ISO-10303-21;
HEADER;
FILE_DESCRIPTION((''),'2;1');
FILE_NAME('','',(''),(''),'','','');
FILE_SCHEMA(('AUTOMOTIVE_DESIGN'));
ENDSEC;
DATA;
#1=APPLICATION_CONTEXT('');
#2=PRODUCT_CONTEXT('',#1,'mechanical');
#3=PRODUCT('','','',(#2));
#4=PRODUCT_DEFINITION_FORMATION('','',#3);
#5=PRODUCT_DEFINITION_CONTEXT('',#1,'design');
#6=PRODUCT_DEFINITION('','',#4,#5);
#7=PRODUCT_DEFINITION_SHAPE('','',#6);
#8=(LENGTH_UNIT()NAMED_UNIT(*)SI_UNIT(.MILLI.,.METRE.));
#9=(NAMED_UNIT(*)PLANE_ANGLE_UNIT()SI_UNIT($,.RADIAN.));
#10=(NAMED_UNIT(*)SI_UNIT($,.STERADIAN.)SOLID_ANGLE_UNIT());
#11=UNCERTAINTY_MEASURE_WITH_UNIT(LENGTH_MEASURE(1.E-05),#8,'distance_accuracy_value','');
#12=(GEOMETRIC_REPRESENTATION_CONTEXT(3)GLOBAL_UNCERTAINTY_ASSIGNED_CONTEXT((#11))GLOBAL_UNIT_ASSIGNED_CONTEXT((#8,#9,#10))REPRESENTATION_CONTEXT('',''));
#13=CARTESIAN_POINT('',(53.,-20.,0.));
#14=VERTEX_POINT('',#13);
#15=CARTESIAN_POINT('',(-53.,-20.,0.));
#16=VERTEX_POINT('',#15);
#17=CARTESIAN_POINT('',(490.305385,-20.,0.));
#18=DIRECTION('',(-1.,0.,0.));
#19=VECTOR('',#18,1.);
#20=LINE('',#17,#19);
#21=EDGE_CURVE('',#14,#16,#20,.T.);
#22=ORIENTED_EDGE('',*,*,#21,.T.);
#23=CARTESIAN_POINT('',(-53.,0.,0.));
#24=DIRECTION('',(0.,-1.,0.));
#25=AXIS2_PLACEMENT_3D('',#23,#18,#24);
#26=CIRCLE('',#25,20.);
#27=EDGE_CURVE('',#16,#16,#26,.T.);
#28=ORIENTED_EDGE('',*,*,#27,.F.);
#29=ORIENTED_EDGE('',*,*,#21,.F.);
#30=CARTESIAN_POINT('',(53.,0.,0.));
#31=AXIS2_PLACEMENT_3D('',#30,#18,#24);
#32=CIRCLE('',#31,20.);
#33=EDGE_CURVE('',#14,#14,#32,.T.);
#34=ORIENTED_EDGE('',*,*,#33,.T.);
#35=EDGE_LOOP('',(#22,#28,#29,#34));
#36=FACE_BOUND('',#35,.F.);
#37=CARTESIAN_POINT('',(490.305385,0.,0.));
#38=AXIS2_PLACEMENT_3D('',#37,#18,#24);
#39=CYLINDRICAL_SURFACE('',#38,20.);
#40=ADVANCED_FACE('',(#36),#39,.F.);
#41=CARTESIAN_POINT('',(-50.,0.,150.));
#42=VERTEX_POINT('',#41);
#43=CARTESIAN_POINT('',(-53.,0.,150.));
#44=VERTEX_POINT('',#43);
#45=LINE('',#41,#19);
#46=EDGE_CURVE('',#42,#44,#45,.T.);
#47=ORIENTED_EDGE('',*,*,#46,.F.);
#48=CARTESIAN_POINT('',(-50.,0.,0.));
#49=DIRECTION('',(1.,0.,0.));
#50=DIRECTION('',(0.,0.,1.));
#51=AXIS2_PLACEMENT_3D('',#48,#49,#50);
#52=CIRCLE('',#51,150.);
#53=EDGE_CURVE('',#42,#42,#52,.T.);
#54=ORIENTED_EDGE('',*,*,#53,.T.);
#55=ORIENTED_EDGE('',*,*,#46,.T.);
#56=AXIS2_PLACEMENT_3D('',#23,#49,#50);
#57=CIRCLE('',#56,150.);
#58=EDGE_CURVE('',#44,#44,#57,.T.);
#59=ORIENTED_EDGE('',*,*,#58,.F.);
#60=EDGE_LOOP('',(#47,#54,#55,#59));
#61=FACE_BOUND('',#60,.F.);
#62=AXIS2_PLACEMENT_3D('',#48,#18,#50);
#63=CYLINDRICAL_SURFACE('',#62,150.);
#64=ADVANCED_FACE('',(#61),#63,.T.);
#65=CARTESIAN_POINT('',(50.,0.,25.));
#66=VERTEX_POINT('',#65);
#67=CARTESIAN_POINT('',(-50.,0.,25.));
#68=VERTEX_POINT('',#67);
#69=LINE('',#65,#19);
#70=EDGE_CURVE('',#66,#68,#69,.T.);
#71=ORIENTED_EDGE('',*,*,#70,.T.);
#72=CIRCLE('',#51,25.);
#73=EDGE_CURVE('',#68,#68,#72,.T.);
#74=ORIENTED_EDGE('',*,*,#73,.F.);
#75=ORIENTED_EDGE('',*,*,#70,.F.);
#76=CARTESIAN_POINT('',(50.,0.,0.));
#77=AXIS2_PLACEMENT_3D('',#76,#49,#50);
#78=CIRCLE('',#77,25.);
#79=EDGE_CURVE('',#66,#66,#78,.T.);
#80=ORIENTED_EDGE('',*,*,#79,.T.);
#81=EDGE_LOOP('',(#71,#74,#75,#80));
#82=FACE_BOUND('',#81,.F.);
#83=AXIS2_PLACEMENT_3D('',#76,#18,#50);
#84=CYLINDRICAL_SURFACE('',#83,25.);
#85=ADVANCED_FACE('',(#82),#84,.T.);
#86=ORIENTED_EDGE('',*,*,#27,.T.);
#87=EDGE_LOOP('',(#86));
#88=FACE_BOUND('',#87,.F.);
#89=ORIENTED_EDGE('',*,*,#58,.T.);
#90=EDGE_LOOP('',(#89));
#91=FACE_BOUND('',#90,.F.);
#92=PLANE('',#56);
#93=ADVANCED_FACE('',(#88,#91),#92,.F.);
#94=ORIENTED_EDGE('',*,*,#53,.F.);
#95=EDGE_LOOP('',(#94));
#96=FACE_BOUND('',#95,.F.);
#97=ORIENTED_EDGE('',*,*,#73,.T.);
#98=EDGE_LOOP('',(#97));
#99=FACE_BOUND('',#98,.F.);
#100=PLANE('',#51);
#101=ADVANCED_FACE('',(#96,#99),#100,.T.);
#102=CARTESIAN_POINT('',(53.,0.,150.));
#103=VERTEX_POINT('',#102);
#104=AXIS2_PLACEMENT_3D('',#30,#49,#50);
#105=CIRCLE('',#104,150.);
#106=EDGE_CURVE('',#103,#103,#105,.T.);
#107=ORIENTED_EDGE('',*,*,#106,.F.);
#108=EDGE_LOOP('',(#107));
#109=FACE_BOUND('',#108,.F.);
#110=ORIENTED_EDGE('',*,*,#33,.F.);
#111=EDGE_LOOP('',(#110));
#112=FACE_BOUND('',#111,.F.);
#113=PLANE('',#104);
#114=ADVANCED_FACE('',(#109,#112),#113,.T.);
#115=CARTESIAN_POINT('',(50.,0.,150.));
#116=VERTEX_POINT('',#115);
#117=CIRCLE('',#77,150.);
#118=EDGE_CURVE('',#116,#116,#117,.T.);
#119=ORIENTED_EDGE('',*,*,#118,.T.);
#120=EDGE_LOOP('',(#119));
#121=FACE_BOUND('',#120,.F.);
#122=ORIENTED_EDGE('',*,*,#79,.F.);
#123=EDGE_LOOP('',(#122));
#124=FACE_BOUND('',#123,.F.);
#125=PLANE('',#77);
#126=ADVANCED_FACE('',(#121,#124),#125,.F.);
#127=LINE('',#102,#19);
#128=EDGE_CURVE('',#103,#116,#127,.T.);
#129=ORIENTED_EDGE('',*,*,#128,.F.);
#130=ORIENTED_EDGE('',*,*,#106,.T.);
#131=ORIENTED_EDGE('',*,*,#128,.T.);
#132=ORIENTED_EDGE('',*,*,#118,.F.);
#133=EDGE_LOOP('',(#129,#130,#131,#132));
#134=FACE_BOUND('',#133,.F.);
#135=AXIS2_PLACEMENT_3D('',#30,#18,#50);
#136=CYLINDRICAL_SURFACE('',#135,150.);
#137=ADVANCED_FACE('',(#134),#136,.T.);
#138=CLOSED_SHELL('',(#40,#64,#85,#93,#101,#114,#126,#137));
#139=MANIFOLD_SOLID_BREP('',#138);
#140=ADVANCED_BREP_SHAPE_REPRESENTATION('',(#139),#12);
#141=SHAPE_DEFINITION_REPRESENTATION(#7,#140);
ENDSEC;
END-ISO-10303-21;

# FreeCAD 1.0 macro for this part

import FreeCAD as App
import Part
import Sketcher


def add_polygon(sketch, points):
    """Adds a closed chain of lines whose ends are joined by coincident constraints."""
    first, n = sketch.GeometryCount, len(points)
    for a, b in zip(points, points[1:] + points[:1]):
        sketch.addGeometry(Part.LineSegment(App.Vector(*a, 0), App.Vector(*b, 0)), False)
    for i in range(n):
        sketch.addConstraint(Sketcher.Constraint("Coincident", first + i, 2, first + (i + 1) % n, 1))

doc = App.newDocument("Part")
body = doc.addObject("PartDesign::Body", "Body")

sketch1 = doc.addObject("Sketcher::SketchObject", "Sketch")
body.addObject(sketch1)
sketch1.AttachmentSupport = (doc.XZ_Plane, [""])
sketch1.MapMode = "FlatFace"
add_polygon(sketch1, [(50, 25), (-50, 25), (-50, 150), (-53, 150), (-53, 0), (53, 0), (53, 150), (50, 150)])
sketch1.addConstraint(Sketcher.Constraint("Horizontal", 0))
sketch1.addConstraint(Sketcher.Constraint("Vertical", 1))
sketch1.addConstraint(Sketcher.Constraint("Horizontal", 2))
sketch1.addConstraint(Sketcher.Constraint("Vertical", 3))
sketch1.addConstraint(Sketcher.Constraint("Horizontal", 4))
sketch1.addConstraint(Sketcher.Constraint("Vertical", 5))
sketch1.addConstraint(Sketcher.Constraint("Horizontal", 6))
sketch1.addConstraint(Sketcher.Constraint("Vertical", 7))
sketch1.addConstraint(Sketcher.Constraint("Symmetric", 3, 2, 4, 2, -1, 1))
sketch1.addConstraint(Sketcher.Constraint("Symmetric", 1, 2, 6, 2, -2))
sketch1.addConstraint(Sketcher.Constraint("DistanceX", 0, 2, 0, 1, 100.0))
sketch1.addConstraint(Sketcher.Constraint("DistanceX", 2, 2, 2, 1, 3.0))
sketch1.addConstraint(Sketcher.Constraint("DistanceY", 1, 1, 1, 2, 125.0))
sketch1.addConstraint(Sketcher.Constraint("DistanceY", 3, 2, 3, 1, 150.0))
revolution = doc.addObject("PartDesign::Revolution", "Revolution")
body.addObject(revolution)
revolution.Profile = sketch1
revolution.ReferenceAxis = (sketch1, ["H_Axis"])
revolution.Angle = 360

sketch2 = doc.addObject("Sketcher::SketchObject", "Sketch001")
body.addObject(sketch2)
sketch2.AttachmentSupport = (doc.YZ_Plane, [""])
sketch2.MapMode = "FlatFace"
sketch2.AttachmentOffset = App.Placement(App.Vector(0, 0, 53), App.Rotation())
sketch2.addGeometry(Part.Circle(App.Vector(0, 0, 0), App.Vector(0, 0, 1), 20), False)
sketch2.addConstraint(Sketcher.Constraint("Coincident", 0, 3, -1, 1))
sketch2.addConstraint(Sketcher.Constraint("Diameter", 0, 40.0))
doc.recompute()
hole = doc.addObject("PartDesign::Hole", "Hole")
body.addObject(hole)
hole.Profile = sketch2
hole.ThreadType = "None"
hole.Diameter = 40
hole.DepthType = "ThroughAll"

doc.recompute()
